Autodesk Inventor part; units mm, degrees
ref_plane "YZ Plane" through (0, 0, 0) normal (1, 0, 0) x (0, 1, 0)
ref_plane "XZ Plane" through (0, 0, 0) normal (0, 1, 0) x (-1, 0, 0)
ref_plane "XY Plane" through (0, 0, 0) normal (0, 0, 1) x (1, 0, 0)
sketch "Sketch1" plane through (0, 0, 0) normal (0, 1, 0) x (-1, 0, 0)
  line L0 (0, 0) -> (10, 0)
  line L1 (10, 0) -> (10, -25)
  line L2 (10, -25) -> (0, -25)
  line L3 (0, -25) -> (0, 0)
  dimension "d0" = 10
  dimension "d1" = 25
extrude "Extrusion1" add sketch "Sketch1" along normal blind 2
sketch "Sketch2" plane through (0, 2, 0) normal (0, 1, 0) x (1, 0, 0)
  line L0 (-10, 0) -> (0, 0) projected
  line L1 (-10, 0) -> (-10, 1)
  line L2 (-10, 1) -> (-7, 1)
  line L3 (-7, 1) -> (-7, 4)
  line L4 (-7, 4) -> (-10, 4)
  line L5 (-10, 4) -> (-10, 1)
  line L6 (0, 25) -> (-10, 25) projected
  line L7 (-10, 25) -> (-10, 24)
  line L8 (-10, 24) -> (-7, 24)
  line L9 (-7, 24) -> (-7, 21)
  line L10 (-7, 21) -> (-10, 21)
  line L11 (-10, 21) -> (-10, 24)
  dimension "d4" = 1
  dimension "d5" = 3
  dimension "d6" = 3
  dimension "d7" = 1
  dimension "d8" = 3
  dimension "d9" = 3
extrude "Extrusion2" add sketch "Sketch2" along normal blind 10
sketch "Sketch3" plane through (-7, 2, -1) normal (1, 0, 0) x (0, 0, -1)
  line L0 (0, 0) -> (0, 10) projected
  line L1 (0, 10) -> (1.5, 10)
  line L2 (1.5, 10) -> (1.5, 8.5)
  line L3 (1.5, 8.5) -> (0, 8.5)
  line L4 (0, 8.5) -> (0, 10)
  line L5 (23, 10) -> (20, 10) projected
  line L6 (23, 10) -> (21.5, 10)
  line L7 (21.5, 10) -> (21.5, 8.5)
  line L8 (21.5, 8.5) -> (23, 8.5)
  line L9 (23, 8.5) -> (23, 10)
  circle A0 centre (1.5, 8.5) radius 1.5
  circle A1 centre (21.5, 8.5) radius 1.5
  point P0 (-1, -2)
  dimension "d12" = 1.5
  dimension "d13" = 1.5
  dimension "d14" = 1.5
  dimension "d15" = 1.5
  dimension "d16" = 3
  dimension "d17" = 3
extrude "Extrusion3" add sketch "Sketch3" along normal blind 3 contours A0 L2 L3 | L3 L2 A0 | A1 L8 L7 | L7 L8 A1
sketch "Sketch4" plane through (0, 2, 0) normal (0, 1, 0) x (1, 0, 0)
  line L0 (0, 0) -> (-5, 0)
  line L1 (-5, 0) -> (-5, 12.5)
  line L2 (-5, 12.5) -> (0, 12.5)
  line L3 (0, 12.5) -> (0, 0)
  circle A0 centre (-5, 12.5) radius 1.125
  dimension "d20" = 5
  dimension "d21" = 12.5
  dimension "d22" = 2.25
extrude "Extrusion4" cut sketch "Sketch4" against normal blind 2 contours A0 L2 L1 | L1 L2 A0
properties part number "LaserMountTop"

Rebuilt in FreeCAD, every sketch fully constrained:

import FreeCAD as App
import Part
import Sketcher
Q = App.Units.Quantity

doc = App.newDocument("Part")
params = doc.addObject("Spreadsheet::Sheet", "Params")
for row, (alias, value) in enumerate([
    ("sketch1_width", "10 mm"),
    ("sketch1_height", "25 mm"),
    ("pad1_length", "2 mm"),
    ("sketch2_width", "3 mm"),
    ("pad2_length", "10 mm"),
    ("sketch3_diameter", "3 mm"),
    ("pad3_length", "3 mm"),
    ("sketch4_diameter", "2.25 mm"),
    ("pocket1_length", "2 mm"),
], start=1):
    params.set(f"A{row}", alias)
    params.set(f"B{row}", "=" + value)
    params.setAlias(f"B{row}", alias)

body = doc.addObject("PartDesign::Body", "Body")

# Sketch on XZ plane
sketch1 = body.newObject("Sketcher::SketchObject", "Sketch")
sketch1.AttachmentSupport = (doc.getObject("XZ_Plane"), [""])
sketch1.MapMode = "FlatFace"
sketch1.addGeometry([
    Part.LineSegment(App.Vector(-10, 0, 0), App.Vector(0, 0, 0)),
    Part.LineSegment(App.Vector(0, 0, 0), App.Vector(0, -25, 0)),
    Part.LineSegment(App.Vector(0, -25, 0), App.Vector(-10, -25, 0)),
    Part.LineSegment(App.Vector(-10, -25, 0), App.Vector(-10, 0, 0)),
], False)
sketch1.addConstraint([
    Sketcher.Constraint("Coincident", 0, 2, 1, 1),
    Sketcher.Constraint("Coincident", 1, 2, 2, 1),
    Sketcher.Constraint("Coincident", 2, 2, 3, 1),
    Sketcher.Constraint("Coincident", 3, 2, 0, 1),
    Sketcher.Constraint("Horizontal", 0),
    Sketcher.Constraint("Vertical", 1),
    Sketcher.Constraint("Horizontal", 2),
    Sketcher.Constraint("Vertical", 3),
    Sketcher.Constraint("Coincident", 0, 2, -1, 1),
    Sketcher.Constraint("DistanceX", 0, 1, 0, 2, Q("10 mm")),
    Sketcher.Constraint("DistanceY", 1, 2, 1, 1, Q("25 mm")),
])
sketch1.setExpression("Constraints[9]", "Params.sketch1_width")
sketch1.setExpression("Constraints[10]", "Params.sketch1_height")
pad1 = body.newObject("PartDesign::Pad", "Pad")
pad1.Profile = sketch1
pad1.setExpression("Length", "Params.pad1_length")
pad1.Reversed = True

# Sketch on XZ plane
sketch2 = body.newObject("Sketcher::SketchObject", "Sketch001")
sketch2.AttachmentSupport = (doc.getObject("XZ_Plane"), [""])
sketch2.MapMode = "FlatFace"
sketch2.AttachmentOffset = App.Placement(App.Vector(0, 0, -2), App.Rotation())
sketch2.addGeometry([
    Part.LineSegment(App.Vector(-10, -4, 0), App.Vector(-10, -1, 0)),  # 0
    Part.LineSegment(App.Vector(-10, -1, 0), App.Vector(-7, -1, 0)),  # 1
    Part.LineSegment(App.Vector(-7, -1, 0), App.Vector(-7, -4, 0)),  # 2
    Part.LineSegment(App.Vector(-7, -4, 0), App.Vector(-10, -4, 0)),  # 3
    Part.LineSegment(App.Vector(-7, -24, 0), App.Vector(-10, -24, 0)),  # 4
    Part.LineSegment(App.Vector(-10, -24, 0), App.Vector(-10, -21, 0)),  # 5
    Part.LineSegment(App.Vector(-10, -21, 0), App.Vector(-7, -21, 0)),  # 6
    Part.LineSegment(App.Vector(-7, -21, 0), App.Vector(-7, -24, 0)),  # 7
], False)
sketch2.addConstraint([
    Sketcher.Constraint("Coincident", 0, 2, 1, 1),
    Sketcher.Constraint("Coincident", 1, 2, 2, 1),
    Sketcher.Constraint("Coincident", 2, 2, 3, 1),
    Sketcher.Constraint("Coincident", 3, 2, 0, 1),
    Sketcher.Constraint("Coincident", 4, 2, 5, 1),
    Sketcher.Constraint("Coincident", 5, 2, 6, 1),
    Sketcher.Constraint("Coincident", 6, 2, 7, 1),
    Sketcher.Constraint("Coincident", 7, 2, 4, 1),
    Sketcher.Constraint("Vertical", 0),
    Sketcher.Constraint("Horizontal", 1),
    Sketcher.Constraint("Vertical", 2),
    Sketcher.Constraint("Horizontal", 3),
    Sketcher.Constraint("Horizontal", 4),
    Sketcher.Constraint("Vertical", 5),
    Sketcher.Constraint("Horizontal", 6),
    Sketcher.Constraint("Vertical", 7),
    Sketcher.Constraint("Vertical", 3, 2, 4, 2),
    Sketcher.Constraint("Vertical", 2, 2, 6, 2),
    Sketcher.Constraint("Equal", 6, 0),
    Sketcher.Constraint("Equal", 2, 5),
    Sketcher.Constraint("DistanceX", 1, 1, 1, 2, Q("3 mm")),
    Sketcher.Constraint("DistanceY", 0, 2, -1, 1, Q("1 mm")),
    Sketcher.Constraint("DistanceX", 0, 2, -1, 1, Q("10 mm")),
    Sketcher.Constraint("DistanceY", 4, 2, -1, 1, Q("24 mm")),
])
sketch2.setExpression("Constraints[20]", "Params.sketch2_width")
pad2 = body.newObject("PartDesign::Pad", "Pad001")
pad2.Profile = sketch2
pad2.setExpression("Length", "Params.pad2_length")
pad2.Reversed = True

# Sketch on YZ plane
sketch3 = body.newObject("Sketcher::SketchObject", "Sketch002")
sketch3.AttachmentSupport = (doc.getObject("YZ_Plane"), [""])
sketch3.MapMode = "FlatFace"
sketch3.AttachmentOffset = App.Placement(App.Vector(0, 0, -7), App.Rotation())
sketch3.addGeometry([
    Part.Circle(App.Vector(10.5, -2.5, 0), App.Vector(0, 0, 1), 1.5),
    Part.Circle(App.Vector(10.5, -22.5, 0), App.Vector(0, 0, 1), 1.5),
], False)
sketch3.addConstraint([
    Sketcher.Constraint("Equal", 0, 1),
    Sketcher.Constraint("Vertical", 0, 3, 1, 3),
    Sketcher.Constraint("Diameter", 0, Q("3 mm")),
    Sketcher.Constraint("DistanceY", 1, 3, 0, 3, Q("20 mm")),
    Sketcher.Constraint("DistanceX", -1, 1, 0, 3, Q("10.5 mm")),
    Sketcher.Constraint("DistanceY", 0, 3, -1, 1, Q("2.5 mm")),
])
sketch3.setExpression("Constraints[2]", "Params.sketch3_diameter")
pad3 = body.newObject("PartDesign::Pad", "Pad002")
pad3.Profile = sketch3
pad3.setExpression("Length", "Params.pad3_length")

# Sketch on XZ plane
sketch4 = body.newObject("Sketcher::SketchObject", "Sketch003")
sketch4.AttachmentSupport = (doc.getObject("XZ_Plane"), [""])
sketch4.MapMode = "FlatFace"
sketch4.AttachmentOffset = App.Placement(App.Vector(0, 0, -2), App.Rotation())
sketch4.addGeometry(Part.Circle(App.Vector(-5, -12.5, 0), App.Vector(0, 0, 1), 1.1), False)
sketch4.addConstraint([
    Sketcher.Constraint("Diameter", 0, Q("2.25 mm")),
    Sketcher.Constraint("DistanceX", 0, 3, -1, 1, Q("5 mm")),
    Sketcher.Constraint("DistanceY", 0, 3, -1, 1, Q("12.5 mm")),
])
sketch4.setExpression("Constraints[0]", "Params.sketch4_diameter")
pocket1 = body.newObject("PartDesign::Pocket", "Pocket")
pocket1.Profile = sketch4
pocket1.setExpression("Length", "Params.pocket1_length")
pocket1.Reversed = True

doc.recompute()
